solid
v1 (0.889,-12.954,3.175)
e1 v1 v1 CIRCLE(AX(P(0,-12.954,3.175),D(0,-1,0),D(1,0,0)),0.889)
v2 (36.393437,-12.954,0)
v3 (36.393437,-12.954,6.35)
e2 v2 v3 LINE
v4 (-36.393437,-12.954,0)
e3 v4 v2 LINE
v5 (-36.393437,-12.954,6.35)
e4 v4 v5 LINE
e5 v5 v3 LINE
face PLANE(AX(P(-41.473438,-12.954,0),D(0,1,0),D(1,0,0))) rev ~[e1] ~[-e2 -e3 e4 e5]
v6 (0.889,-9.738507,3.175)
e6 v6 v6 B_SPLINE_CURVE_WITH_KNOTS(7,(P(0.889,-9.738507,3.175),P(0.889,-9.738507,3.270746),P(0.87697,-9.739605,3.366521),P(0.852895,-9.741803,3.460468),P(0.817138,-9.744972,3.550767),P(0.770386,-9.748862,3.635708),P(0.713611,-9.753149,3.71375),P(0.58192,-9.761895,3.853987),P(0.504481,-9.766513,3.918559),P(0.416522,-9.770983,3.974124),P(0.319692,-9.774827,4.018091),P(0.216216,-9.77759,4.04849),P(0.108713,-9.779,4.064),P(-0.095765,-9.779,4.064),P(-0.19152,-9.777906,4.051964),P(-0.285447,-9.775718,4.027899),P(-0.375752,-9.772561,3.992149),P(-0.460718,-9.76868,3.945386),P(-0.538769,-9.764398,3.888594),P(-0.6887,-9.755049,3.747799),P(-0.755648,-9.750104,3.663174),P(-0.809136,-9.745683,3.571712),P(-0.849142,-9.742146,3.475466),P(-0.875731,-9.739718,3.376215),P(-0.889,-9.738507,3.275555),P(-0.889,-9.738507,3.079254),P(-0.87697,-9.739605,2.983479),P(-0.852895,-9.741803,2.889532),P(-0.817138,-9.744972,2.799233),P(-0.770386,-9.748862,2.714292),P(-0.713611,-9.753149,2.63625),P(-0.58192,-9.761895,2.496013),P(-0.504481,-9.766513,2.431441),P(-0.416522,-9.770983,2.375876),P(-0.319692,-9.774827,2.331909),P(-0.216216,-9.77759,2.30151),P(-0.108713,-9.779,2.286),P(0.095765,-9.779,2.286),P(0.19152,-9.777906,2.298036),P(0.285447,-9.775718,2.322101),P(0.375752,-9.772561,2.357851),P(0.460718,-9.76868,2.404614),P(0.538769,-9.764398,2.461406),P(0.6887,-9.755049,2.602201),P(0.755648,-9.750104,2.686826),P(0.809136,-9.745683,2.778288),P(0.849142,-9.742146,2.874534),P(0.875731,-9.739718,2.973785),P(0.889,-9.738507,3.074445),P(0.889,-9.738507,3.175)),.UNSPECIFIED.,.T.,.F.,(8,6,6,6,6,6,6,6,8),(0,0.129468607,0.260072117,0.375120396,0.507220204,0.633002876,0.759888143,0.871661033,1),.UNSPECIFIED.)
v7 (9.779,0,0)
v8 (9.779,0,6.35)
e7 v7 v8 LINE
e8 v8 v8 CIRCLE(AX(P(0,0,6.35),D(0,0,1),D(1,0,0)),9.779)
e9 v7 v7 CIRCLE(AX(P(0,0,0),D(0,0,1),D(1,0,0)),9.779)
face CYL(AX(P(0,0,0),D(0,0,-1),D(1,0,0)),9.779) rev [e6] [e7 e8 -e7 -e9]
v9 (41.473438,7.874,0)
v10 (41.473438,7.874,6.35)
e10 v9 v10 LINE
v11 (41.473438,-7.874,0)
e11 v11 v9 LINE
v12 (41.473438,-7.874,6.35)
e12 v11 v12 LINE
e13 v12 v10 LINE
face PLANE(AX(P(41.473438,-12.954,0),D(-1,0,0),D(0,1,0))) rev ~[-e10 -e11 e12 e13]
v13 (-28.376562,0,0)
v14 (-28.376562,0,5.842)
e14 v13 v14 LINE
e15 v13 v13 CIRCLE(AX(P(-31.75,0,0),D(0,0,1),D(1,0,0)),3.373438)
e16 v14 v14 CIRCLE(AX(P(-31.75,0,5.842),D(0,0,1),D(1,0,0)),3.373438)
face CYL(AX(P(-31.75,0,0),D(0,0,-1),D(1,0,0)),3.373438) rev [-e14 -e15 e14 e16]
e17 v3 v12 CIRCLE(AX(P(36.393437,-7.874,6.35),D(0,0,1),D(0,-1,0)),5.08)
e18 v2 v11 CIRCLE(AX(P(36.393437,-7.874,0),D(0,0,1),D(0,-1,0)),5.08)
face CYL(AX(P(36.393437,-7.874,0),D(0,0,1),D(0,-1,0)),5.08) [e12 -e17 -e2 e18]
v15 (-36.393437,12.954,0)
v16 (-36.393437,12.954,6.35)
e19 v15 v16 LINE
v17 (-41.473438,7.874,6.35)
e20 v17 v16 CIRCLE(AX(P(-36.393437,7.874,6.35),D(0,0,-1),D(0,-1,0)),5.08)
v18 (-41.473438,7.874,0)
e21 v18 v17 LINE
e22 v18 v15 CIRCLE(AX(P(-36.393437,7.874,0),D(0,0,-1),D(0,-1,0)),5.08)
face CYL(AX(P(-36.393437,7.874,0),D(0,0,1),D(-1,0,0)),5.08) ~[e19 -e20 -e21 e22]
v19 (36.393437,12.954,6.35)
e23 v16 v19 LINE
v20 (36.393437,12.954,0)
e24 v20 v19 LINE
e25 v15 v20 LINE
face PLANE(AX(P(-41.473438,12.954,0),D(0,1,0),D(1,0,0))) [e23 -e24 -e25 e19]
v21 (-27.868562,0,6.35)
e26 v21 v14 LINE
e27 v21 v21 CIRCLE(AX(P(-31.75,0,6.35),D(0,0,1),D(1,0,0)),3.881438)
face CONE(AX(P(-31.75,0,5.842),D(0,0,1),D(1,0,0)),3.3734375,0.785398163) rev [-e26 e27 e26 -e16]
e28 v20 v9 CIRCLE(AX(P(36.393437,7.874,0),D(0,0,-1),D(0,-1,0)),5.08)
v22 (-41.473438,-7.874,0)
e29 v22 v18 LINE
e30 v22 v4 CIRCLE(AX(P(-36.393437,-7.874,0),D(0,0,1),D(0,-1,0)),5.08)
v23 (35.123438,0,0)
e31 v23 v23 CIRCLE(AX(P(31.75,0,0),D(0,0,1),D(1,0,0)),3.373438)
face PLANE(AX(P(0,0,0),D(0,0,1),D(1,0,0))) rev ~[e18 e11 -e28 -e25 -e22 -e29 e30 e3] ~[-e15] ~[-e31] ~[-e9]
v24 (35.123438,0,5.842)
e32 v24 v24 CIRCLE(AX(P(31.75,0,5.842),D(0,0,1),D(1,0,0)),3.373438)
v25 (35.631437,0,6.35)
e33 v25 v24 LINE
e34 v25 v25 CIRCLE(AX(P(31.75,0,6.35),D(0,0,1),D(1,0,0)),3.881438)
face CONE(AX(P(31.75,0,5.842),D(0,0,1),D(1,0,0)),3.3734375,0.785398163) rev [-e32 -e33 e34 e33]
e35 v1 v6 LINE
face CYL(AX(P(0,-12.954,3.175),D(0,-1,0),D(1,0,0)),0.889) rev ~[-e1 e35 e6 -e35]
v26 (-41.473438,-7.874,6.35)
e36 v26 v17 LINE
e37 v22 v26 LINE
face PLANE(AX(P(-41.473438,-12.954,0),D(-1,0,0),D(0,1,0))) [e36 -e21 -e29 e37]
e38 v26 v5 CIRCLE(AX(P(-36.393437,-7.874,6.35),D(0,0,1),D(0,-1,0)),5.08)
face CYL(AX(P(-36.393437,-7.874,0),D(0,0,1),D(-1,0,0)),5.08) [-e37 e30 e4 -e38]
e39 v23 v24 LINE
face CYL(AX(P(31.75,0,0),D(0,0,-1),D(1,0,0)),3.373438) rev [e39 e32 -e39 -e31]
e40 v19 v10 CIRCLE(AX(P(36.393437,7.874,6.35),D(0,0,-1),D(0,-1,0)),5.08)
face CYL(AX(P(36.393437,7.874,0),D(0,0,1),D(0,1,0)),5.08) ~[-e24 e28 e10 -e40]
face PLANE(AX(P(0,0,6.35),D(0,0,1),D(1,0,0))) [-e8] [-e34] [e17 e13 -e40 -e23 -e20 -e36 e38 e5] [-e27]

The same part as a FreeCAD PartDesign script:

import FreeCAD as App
import Part
import Sketcher

V = App.Vector
Q = App.Units.Quantity


def edges_at(feature, points):
    """Names of the edges that pass closest to the given points."""
    edges = feature.Shape.Edges
    near = lambda p: min(range(len(edges)), key=lambda i: edges[i].distToShape(Part.Vertex(*p))[0])
    return sorted({f"Edge{near(p) + 1}" for p in points})

doc = App.newDocument("Part")
body = doc.addObject("PartDesign::Body", "Body")

# Sketch on XY plane
sketch1 = body.newObject("Sketcher::SketchObject", "Sketch")
sketch1.AttachmentSupport = (doc.getObject("XY_Plane"), [""])
sketch1.MapMode = "FlatFace"
sketch1.addGeometry(Part.LineSegment(V(-41.5, 13, 0), V(-41.5, -13, 0)), False)
sketch1.addGeometry(Part.LineSegment(V(-41.5, -13, 0), V(41.5, -13, 0)), False)
sketch1.addGeometry(Part.LineSegment(V(41.5, -13, 0), V(41.5, 13, 0)), False)
sketch1.addGeometry(Part.LineSegment(V(41.5, 13, 0), V(-41.5, 13, 0)), False)
sketch1.addGeometry(Part.Circle(V(-31.8, 0, 0), V(0, 0, 1), 3.4), False)
sketch1.addGeometry(Part.Circle(V(0, 0, 0), V(0, 0, 1), 9.8), False)
sketch1.addGeometry(Part.Circle(V(31.8, 0, 0), V(0, 0, 1), 3.4), False)
sketch1.addConstraint(Sketcher.Constraint("Coincident", 0, 2, 1, 1))
sketch1.addConstraint(Sketcher.Constraint("Coincident", 1, 2, 2, 1))
sketch1.addConstraint(Sketcher.Constraint("Coincident", 2, 2, 3, 1))
sketch1.addConstraint(Sketcher.Constraint("Coincident", 3, 2, 0, 1))
sketch1.addConstraint(Sketcher.Constraint("Vertical", 0))
sketch1.addConstraint(Sketcher.Constraint("Horizontal", 1))
sketch1.addConstraint(Sketcher.Constraint("Vertical", 2))
sketch1.addConstraint(Sketcher.Constraint("Horizontal", 3))
sketch1.addConstraint(Sketcher.Constraint("Coincident", 5, 3, -1, 1))
sketch1.addConstraint(Sketcher.Constraint("Equal", 4, 6))
sketch1.addConstraint(Sketcher.Constraint("Symmetric", 4, 3, 6, 3, -1, 1))
sketch1.addConstraint(Sketcher.Constraint("Symmetric", 0, 2, 2, 2, -1, 1))
sketch1.addConstraint(Sketcher.Constraint("PointOnObject", 4, 3, -1))
sketch1.addConstraint(Sketcher.Constraint("Diameter", 5, Q("0.77 in")))
sketch1.addConstraint(Sketcher.Constraint("Diameter", 4, Q("0.265625 in")))
sketch1.addConstraint(Sketcher.Constraint("DistanceY", 0, 2, 0, 1, Q("1.02 in")))
sketch1.addConstraint(Sketcher.Constraint("DistanceX", 4, 3, 6, 3, Q("2.5 in")))
sketch1.addConstraint(Sketcher.Constraint("DistanceX", 1, 1, 1, 2, Q("3.265625 in")))
pad1 = body.newObject("PartDesign::Pad", "Pad")
pad1.Profile = sketch1
pad1.Length = Q("0.25 in")

# Sketch on XZ plane
sketch2 = body.newObject("Sketcher::SketchObject", "Sketch001")
sketch2.AttachmentSupport = (doc.getObject("XZ_Plane"), [""])
sketch2.MapMode = "FlatFace"
sketch2.AttachmentOffset = App.Placement(V(0, 0, 0.51 * 25.4), App.Rotation())
sketch2.addGeometry(Part.Circle(V(0, 3.2, 0), V(0, 0, 1), 0.9), False)
sketch2.addConstraint(Sketcher.Constraint("PointOnObject", 0, 3, -2))
sketch2.addConstraint(Sketcher.Constraint("Diameter", 0, Q("0.07 in")))
sketch2.addConstraint(Sketcher.Constraint("DistanceY", -1, 1, 0, 3, Q("0.125 in")))
pocket1 = body.newObject("PartDesign::Pocket", "Pocket")
pocket1.Profile = sketch2
pocket1.Length = 3.216493
doc.recompute()

fillet = body.newObject("PartDesign::Fillet", "Fillet")
fillet.Base = (pocket1, edges_at(pocket1, [
    (41.473, -12.954, 3.175),
    (41.473, 12.954, 3.175),
    (-41.473, -12.954, 3.175),
    (-41.473, 12.954, 3.175),
]))
fillet.Radius = Q("0.2 in")
doc.recompute()

chamfer = body.newObject("PartDesign::Chamfer", "Chamfer")
chamfer.Base = (fillet, edges_at(fillet, [(-35.123, 0, 6.35), (28.377, 0, 6.35)]))
chamfer.Size = Q("0.02 in")

doc.recompute()
